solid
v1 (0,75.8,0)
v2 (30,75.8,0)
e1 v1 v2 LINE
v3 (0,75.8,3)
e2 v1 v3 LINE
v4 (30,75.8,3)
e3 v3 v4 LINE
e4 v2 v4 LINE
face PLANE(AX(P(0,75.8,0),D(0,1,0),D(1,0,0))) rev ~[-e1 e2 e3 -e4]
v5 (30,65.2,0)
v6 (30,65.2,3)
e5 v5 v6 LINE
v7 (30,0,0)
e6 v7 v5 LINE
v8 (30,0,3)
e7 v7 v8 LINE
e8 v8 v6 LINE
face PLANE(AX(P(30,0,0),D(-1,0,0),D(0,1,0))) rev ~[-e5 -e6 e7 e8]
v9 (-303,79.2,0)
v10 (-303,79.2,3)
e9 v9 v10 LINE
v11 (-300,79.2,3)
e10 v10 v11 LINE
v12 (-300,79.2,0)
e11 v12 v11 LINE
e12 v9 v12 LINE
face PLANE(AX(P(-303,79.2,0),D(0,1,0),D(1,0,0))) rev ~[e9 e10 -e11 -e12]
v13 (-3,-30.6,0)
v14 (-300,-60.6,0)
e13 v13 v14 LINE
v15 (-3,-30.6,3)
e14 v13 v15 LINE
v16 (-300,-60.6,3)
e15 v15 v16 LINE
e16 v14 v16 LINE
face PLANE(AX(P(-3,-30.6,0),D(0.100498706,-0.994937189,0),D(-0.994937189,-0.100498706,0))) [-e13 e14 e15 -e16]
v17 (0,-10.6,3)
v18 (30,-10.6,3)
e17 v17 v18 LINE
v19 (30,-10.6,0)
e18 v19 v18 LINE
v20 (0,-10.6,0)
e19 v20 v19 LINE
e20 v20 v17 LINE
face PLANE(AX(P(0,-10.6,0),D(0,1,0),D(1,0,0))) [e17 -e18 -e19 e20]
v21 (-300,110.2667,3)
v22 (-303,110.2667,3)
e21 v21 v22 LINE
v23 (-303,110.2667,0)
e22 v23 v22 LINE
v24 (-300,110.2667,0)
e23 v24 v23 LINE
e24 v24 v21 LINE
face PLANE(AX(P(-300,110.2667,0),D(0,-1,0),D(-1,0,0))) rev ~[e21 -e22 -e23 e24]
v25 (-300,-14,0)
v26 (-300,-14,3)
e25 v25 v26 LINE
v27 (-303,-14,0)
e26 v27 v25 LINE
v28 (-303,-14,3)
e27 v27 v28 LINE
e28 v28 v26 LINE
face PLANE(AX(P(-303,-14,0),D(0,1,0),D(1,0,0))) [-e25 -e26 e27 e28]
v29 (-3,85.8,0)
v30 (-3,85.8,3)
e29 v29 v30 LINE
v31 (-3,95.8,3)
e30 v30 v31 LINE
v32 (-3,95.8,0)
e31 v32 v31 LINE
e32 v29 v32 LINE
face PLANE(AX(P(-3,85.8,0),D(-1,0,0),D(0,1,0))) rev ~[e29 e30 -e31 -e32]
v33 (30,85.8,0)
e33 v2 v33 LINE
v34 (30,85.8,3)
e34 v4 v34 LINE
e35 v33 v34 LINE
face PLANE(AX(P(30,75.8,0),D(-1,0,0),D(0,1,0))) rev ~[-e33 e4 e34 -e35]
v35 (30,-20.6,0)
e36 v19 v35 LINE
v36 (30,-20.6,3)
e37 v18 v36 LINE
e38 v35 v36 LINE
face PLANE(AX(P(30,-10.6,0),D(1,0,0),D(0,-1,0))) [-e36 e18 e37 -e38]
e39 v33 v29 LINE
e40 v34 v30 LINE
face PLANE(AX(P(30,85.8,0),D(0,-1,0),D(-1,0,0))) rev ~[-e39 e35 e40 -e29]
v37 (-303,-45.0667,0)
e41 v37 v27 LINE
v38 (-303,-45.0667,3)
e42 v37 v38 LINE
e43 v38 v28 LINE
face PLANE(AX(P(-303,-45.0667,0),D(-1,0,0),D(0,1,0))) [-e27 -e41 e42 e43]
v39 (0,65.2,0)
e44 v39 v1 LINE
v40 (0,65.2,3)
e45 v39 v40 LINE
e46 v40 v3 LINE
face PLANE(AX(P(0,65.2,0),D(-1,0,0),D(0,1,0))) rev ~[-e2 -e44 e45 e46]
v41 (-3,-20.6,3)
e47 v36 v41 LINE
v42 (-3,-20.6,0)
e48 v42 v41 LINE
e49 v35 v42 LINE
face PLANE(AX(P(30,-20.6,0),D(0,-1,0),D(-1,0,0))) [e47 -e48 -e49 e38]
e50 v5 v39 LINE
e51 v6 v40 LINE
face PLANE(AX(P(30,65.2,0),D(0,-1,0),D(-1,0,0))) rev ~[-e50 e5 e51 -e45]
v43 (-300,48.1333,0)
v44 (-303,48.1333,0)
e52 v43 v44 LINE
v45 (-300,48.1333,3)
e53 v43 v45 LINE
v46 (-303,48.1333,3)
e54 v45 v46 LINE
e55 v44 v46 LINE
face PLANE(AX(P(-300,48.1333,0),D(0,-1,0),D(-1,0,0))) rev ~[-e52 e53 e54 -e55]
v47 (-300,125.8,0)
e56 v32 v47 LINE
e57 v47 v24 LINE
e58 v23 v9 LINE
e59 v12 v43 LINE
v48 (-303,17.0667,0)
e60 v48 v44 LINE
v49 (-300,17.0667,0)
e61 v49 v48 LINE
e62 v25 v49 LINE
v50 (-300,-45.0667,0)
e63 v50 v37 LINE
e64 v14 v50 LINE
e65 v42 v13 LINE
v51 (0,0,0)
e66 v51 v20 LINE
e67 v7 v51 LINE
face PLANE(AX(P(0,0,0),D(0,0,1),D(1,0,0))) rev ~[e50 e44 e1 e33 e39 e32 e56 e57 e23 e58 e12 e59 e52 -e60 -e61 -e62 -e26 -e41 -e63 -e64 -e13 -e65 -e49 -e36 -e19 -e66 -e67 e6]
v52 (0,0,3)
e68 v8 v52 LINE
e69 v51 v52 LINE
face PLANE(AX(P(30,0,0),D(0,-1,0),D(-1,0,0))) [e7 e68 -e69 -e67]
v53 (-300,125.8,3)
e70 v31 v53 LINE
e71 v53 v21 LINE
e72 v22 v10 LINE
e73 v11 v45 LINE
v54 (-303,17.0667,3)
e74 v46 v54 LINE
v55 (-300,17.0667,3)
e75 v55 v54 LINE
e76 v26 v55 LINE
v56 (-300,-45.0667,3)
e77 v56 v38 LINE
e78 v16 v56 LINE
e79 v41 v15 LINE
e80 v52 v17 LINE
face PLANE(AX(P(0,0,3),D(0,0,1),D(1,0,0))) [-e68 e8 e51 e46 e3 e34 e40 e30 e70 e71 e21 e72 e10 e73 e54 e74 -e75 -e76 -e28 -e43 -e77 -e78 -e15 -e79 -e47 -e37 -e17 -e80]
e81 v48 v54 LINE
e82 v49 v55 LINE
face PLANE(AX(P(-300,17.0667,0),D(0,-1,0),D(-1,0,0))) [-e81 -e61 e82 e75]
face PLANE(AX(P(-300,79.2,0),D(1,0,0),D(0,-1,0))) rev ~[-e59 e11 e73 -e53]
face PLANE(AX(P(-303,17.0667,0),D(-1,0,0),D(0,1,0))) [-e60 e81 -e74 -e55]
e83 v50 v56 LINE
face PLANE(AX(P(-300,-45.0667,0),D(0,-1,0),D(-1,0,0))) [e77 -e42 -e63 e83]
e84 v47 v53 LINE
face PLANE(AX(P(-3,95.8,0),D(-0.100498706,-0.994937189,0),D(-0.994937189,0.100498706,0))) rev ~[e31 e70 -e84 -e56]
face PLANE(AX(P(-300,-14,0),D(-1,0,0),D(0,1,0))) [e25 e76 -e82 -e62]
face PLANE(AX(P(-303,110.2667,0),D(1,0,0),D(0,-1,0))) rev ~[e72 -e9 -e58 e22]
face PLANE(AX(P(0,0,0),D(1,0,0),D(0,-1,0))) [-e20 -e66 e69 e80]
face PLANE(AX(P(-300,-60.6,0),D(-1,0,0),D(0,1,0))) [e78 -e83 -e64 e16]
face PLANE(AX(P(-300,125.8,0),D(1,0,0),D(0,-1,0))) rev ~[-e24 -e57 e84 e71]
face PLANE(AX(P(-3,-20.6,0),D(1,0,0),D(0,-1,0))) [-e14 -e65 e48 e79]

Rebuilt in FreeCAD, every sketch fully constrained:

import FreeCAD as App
import Part
import Sketcher
Q = App.Units.Quantity


def add_polygon(sketch, points):
    """Adds a closed chain of lines whose ends are joined by coincident constraints."""
    first, n = sketch.GeometryCount, len(points)
    for a, b in zip(points, points[1:] + points[:1]):
        sketch.addGeometry(Part.LineSegment(App.Vector(*a, 0), App.Vector(*b, 0)), False)
    for i in range(n):
        sketch.addConstraint(Sketcher.Constraint("Coincident", first + i, 2, first + (i + 1) % n, 1))

doc = App.newDocument("Part")
body = doc.addObject("PartDesign::Body", "Body")

# Sketch on XY plane
sketch1 = body.newObject("Sketcher::SketchObject", "Sketch")
sketch1.AttachmentSupport = (doc.getObject("XY_Plane"), [""])
sketch1.MapMode = "FlatFace"
add_polygon(sketch1, [(0, 65.2), (0, 75.8), (30, 75.8), (30, 85.8), (-3, 85.8), (-3, 95.8), (-300, 125.8), (-300, 110.2667), (-303, 110.2667), (-303, 79.2), (-300, 79.2), (-300, 48.1333), (-303, 48.1333), (-303, 17.0667), (-300, 17.0667), (-300, -14), (-303, -14), (-303, -45.0667), (-300, -45.0667), (-300, -60.6), (-3, -30.6), (-3, -20.6), (30, -20.6), (30, -10.6), (0, -10.6), (0, 0), (30, 0), (30, 65.2)])  # lines 0-27
sketch1.addConstraint([
    Sketcher.Constraint("Vertical", 0),
    Sketcher.Constraint("Horizontal", 1),
    Sketcher.Constraint("Vertical", 2),
    Sketcher.Constraint("Horizontal", 3),
    Sketcher.Constraint("Vertical", 4),
    Sketcher.Constraint("Vertical", 6),
    Sketcher.Constraint("Horizontal", 7),
    Sketcher.Constraint("Vertical", 8),
    Sketcher.Constraint("Horizontal", 9),
    Sketcher.Constraint("Vertical", 10),
    Sketcher.Constraint("Horizontal", 11),
    Sketcher.Constraint("Vertical", 12),
    Sketcher.Constraint("Horizontal", 13),
    Sketcher.Constraint("Vertical", 14),
    Sketcher.Constraint("Horizontal", 15),
    Sketcher.Constraint("Vertical", 16),
    Sketcher.Constraint("Horizontal", 17),
    Sketcher.Constraint("Vertical", 18),
    Sketcher.Constraint("Vertical", 20),
    Sketcher.Constraint("Horizontal", 21),
    Sketcher.Constraint("Vertical", 22),
    Sketcher.Constraint("Horizontal", 23),
    Sketcher.Constraint("Vertical", 24),
    Sketcher.Constraint("Horizontal", 25),
    Sketcher.Constraint("Vertical", 26),
    Sketcher.Constraint("Horizontal", 27),
    Sketcher.Constraint("Coincident", 24, 2, -1, 1),
    Sketcher.Constraint("PointOnObject", 0, 2, -2),
    Sketcher.Constraint("Vertical", 6, 2, 9, 2),
    Sketcher.Constraint("Vertical", 8, 2, 11, 2),
    Sketcher.Constraint("Vertical", 10, 2, 13, 2),
    Sketcher.Constraint("Vertical", 12, 2, 15, 2),
    Sketcher.Constraint("Vertical", 14, 2, 17, 2),
    Sketcher.Constraint("Vertical", 4, 2, 19, 2),
    Sketcher.Constraint("Vertical", 2, 2, 21, 2),
    Sketcher.Constraint("Vertical", 22, 2, 25, 2),
    Sketcher.Constraint("Equal", 2, 4),
    Sketcher.Constraint("Equal", 8, 10),
    Sketcher.Constraint("Equal", 10, 12),
    Sketcher.Constraint("Equal", 12, 14),
    Sketcher.Constraint("Equal", 14, 16),
    Sketcher.Constraint("Equal", 6, 18),
    Sketcher.Constraint("Equal", 4, 20),
    Sketcher.Constraint("Equal", 20, 22),
    Sketcher.Constraint("Equal", 0, 24),
    Sketcher.Constraint("Equal", 5, 19),
    Sketcher.Constraint("DistanceX", 1, 1, 1, 2, Q("30 mm")),
    Sketcher.Constraint("DistanceX", 7, 2, 7, 1, Q("3 mm")),
    Sketcher.Constraint("DistanceY", 2, 1, 2, 2, Q("10 mm")),
    Sketcher.Constraint("DistanceX", 3, 2, -1, 1, Q("3 mm")),
    Sketcher.Constraint("DistanceX", 5, 2, -1, 1, Q("300 mm")),
    Sketcher.Constraint("DistanceY", 4, 2, 5, 2, Q("30 mm")),
    Sketcher.Constraint("DistanceY", 0, 1, 0, 2, Q("10.6 mm")),
    Sketcher.Constraint("DistanceY", 26, 1, 26, 2, Q("65.2 mm")),
    Sketcher.Constraint("DistanceY", 14, 2, -1, 1, Q("14 mm")),
])
pad1 = body.newObject("PartDesign::Pad", "Pad")
pad1.Profile = sketch1
pad1.Length = 3

doc.recompute()
